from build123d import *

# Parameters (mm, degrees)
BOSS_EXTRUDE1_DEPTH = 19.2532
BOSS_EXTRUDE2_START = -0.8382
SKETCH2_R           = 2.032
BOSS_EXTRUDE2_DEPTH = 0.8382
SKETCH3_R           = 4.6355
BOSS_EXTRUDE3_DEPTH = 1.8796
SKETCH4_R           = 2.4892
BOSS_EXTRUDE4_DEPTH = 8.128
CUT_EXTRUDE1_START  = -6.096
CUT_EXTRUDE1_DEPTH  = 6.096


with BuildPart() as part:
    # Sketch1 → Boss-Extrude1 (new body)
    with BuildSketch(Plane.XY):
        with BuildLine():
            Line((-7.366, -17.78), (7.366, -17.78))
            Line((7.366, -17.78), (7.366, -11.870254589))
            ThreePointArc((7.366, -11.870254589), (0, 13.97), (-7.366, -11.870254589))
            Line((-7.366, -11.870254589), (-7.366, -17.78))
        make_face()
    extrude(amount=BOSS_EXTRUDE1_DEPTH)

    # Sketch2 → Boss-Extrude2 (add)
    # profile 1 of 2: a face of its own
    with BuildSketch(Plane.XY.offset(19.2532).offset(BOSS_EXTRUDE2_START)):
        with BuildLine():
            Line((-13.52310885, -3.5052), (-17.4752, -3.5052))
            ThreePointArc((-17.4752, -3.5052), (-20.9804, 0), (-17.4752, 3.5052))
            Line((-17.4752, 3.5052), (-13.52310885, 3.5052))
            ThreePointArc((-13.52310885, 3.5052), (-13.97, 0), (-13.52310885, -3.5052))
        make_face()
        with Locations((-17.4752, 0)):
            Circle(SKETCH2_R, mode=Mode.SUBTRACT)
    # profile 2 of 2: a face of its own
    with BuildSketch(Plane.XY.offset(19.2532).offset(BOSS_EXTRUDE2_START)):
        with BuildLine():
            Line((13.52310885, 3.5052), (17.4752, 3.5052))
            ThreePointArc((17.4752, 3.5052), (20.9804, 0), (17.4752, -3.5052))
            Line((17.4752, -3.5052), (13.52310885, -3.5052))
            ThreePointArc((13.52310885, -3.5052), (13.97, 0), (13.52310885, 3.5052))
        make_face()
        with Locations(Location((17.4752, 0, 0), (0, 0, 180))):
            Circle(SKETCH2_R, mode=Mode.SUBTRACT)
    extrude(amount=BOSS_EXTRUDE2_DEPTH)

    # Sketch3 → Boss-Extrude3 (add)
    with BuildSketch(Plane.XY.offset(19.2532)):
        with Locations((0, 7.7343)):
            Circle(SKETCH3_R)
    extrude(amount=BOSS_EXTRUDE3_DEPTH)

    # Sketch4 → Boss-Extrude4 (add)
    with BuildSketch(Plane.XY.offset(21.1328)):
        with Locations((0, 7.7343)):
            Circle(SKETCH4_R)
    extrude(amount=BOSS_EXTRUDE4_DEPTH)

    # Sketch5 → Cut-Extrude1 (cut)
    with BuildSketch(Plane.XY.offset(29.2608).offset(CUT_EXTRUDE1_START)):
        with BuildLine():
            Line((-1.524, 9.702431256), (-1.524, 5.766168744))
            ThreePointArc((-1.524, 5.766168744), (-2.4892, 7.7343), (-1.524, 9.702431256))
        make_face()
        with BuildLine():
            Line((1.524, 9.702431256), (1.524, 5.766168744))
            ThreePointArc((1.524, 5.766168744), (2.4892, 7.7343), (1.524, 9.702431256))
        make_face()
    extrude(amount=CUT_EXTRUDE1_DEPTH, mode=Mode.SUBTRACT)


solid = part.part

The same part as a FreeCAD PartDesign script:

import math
import FreeCAD as App
import Part
import Sketcher
Q = App.Units.Quantity

doc = App.newDocument("Part")
params = doc.addObject("Spreadsheet::Sheet", "Params")
for row, (alias, value) in enumerate([
    ("sketch1_radius", "0.55 in"),
    ("sketch1_width", "0.58 in"),
    ("pad1_length", "0.758 in"),
    ("sketch2_diameter", "0.16 in"),
    ("sketch2_radius", "0.55 in"),
    ("sketch2_radius2", "0.138 in"),
    ("pad2_length", "0.033 in"),
    ("sketch3_diameter", "0.365 in"),
    ("pad3_length", "0.074 in"),
    ("sketch4_diameter", "0.196 in"),
    ("pad4_length", "0.32 in"),
    ("sketch5_radius", "0.098 in"),
    ("pocket1_length", "0.24 in"),
], start=1):
    params.set(f"A{row}", alias)
    params.set(f"B{row}", "=" + value)
    params.setAlias(f"B{row}", alias)

body = doc.addObject("PartDesign::Body", "Body")

# Sketch on XY plane
sketch1 = doc.addObject("Sketcher::SketchObject", "Sketch")
body.addObject(sketch1)
sketch1.AttachmentSupport = (doc.XY_Plane, [""])
sketch1.MapMode = "FlatFace"
sketch1.addGeometry([
    Part.LineSegment(App.Vector(-7.366, -17.78, 0), App.Vector(7.366, -17.78, 0)),
    Part.LineSegment(App.Vector(7.366, -17.78, 0), App.Vector(7.366, -11.870255, 0)),
    Part.ArcOfCircle(Part.Circle(App.Vector(0, 0, 0), App.Vector(0, 0, 1), 13.97), math.radians(-58.178631), math.radians(238.178631)),
    Part.LineSegment(App.Vector(-7.366, -11.870255, 0), App.Vector(-7.366, -17.78, 0)),
], False)
sketch1.addConstraint([
    Sketcher.Constraint("Coincident", 0, 2, 1, 1),
    Sketcher.Constraint("Coincident", 1, 2, 2, 1),
    Sketcher.Constraint("Coincident", 2, 2, 3, 1),
    Sketcher.Constraint("Coincident", 3, 2, 0, 1),
    Sketcher.Constraint("Horizontal", 0),
    Sketcher.Constraint("Vertical", 1),
    Sketcher.Constraint("Vertical", 3),
    Sketcher.Constraint("Coincident", 2, 3, -1, 1),
    Sketcher.Constraint("Horizontal", 1, 2, 2, 2),
    Sketcher.Constraint("Radius", 2, Q("0.55 in")),
    Sketcher.Constraint("DistanceX", 0, 1, 0, 2, Q("0.58 in")),
    Sketcher.Constraint("DistanceY", 0, 2, -1, 1, Q("0.7 in")),
])
sketch1.setExpression("Constraints[9]", "Params.sketch1_radius")
sketch1.setExpression("Constraints[10]", "Params.sketch1_width")
pad1 = doc.addObject("PartDesign::Pad", "Pad")
body.addObject(pad1)
pad1.Profile = sketch1
pad1.setExpression("Length", "Params.pad1_length")

# Sketch on XY plane
sketch2 = doc.addObject("Sketcher::SketchObject", "Sketch001")
body.addObject(sketch2)
sketch2.AttachmentSupport = (doc.XY_Plane, [""])
sketch2.MapMode = "FlatFace"
sketch2.AttachmentOffset = App.Placement(App.Vector(0, 0, 0.725 * 25.4), App.Rotation())
sketch2.addGeometry([
    Part.LineSegment(App.Vector(-17.4752, -3.5052, 0), App.Vector(-13.523109, -3.5052, 0)),  # 0
    Part.ArcOfCircle(Part.Circle(App.Vector(0, 0, 0), App.Vector(0, 0, 1), 13.97), math.radians(165.468686), math.radians(194.531314)),  # 1
    Part.LineSegment(App.Vector(-13.523109, 3.5052, 0), App.Vector(-17.4752, 3.5052, 0)),  # 2
    Part.ArcOfCircle(Part.Circle(App.Vector(-17.4752, 0, 0), App.Vector(0, 0, 1), 3.5052), math.radians(90), math.radians(270)),  # 3
    Part.Circle(App.Vector(-17.4752, 0, 0), App.Vector(0, 0, 1), 2.032),  # 4
    Part.LineSegment(App.Vector(17.4752, 3.5052, 0), App.Vector(13.523109, 3.5052, 0)),  # 5
    Part.ArcOfCircle(Part.Circle(App.Vector(0, 0, 0), App.Vector(0, 0, 1), 13.97), math.radians(-14.531314), math.radians(14.531314)),  # 6
    Part.LineSegment(App.Vector(13.523109, -3.5052, 0), App.Vector(17.4752, -3.5052, 0)),  # 7
    Part.ArcOfCircle(Part.Circle(App.Vector(17.4752, 0, 0), App.Vector(0, 0, 1), 3.5052), math.radians(-90), math.radians(90)),  # 8
    Part.Circle(App.Vector(17.4752, 0, 0), App.Vector(0, 0, 1), 2.032),  # 9
], False)
sketch2.addConstraint([
    Sketcher.Constraint("Coincident", 0, 2, 1, 2),
    Sketcher.Constraint("Coincident", 1, 1, 2, 1),
    Sketcher.Constraint("Tangent", 2, 2, 3, 1),
    Sketcher.Constraint("Tangent", 3, 2, 0, 1),
    Sketcher.Constraint("Coincident", 5, 2, 6, 2),
    Sketcher.Constraint("Coincident", 6, 1, 7, 1),
    Sketcher.Constraint("Tangent", 7, 2, 8, 1),
    Sketcher.Constraint("Tangent", 8, 2, 5, 1),
    Sketcher.Constraint("Horizontal", 0),
    Sketcher.Constraint("Horizontal", 2),
    Sketcher.Constraint("Horizontal", 5),
    Sketcher.Constraint("Horizontal", 7),
    Sketcher.Constraint("Coincident", 1, 3, -1, 1),
    Sketcher.Constraint("Coincident", 6, 3, -1, 1),
    Sketcher.Constraint("Coincident", 4, 3, 3, 3),
    Sketcher.Constraint("Coincident", 9, 3, 8, 3),
    Sketcher.Constraint("Equal", 1, 6),
    Sketcher.Constraint("Equal", 3, 8),
    Sketcher.Constraint("Equal", 4, 9),
    Sketcher.Constraint("Symmetric", 3, 3, 8, 3, -1, 1),
    Sketcher.Constraint("PointOnObject", 3, 3, -1),
    Sketcher.Constraint("Diameter", 4, Q("0.16 in")),
    Sketcher.Constraint("Radius", 1, Q("0.55 in")),
    Sketcher.Constraint("Radius", 3, Q("0.138 in")),
    Sketcher.Constraint("DistanceX", 3, 3, -1, 1, Q("0.688 in")),
])
sketch2.setExpression("Constraints[21]", "Params.sketch2_diameter")
sketch2.setExpression("Constraints[22]", "Params.sketch2_radius")
sketch2.setExpression("Constraints[23]", "Params.sketch2_radius2")
pad2 = doc.addObject("PartDesign::Pad", "Pad001")
body.addObject(pad2)
pad2.Profile = sketch2
pad2.setExpression("Length", "Params.pad2_length")

# Sketch on XY plane
sketch3 = doc.addObject("Sketcher::SketchObject", "Sketch002")
body.addObject(sketch3)
sketch3.AttachmentSupport = (doc.XY_Plane, [""])
sketch3.MapMode = "FlatFace"
sketch3.AttachmentOffset = App.Placement(App.Vector(0, 0, 0.758 * 25.4), App.Rotation())
sketch3.addGeometry(Part.Circle(App.Vector(0, 7.7343, 0), App.Vector(0, 0, 1), 4.6355), False)
sketch3.addConstraint([
    Sketcher.Constraint("PointOnObject", 0, 3, -2),
    Sketcher.Constraint("Diameter", 0, Q("0.365 in")),
    Sketcher.Constraint("DistanceY", -1, 1, 0, 3, Q("0.3045 in")),
])
sketch3.setExpression("Constraints[1]", "Params.sketch3_diameter")
pad3 = doc.addObject("PartDesign::Pad", "Pad002")
body.addObject(pad3)
pad3.Profile = sketch3
pad3.setExpression("Length", "Params.pad3_length")

# Sketch on XY plane
sketch4 = doc.addObject("Sketcher::SketchObject", "Sketch003")
body.addObject(sketch4)
sketch4.AttachmentSupport = (doc.XY_Plane, [""])
sketch4.MapMode = "FlatFace"
sketch4.AttachmentOffset = App.Placement(App.Vector(0, 0, 0.832 * 25.4), App.Rotation())
sketch4.addGeometry(Part.Circle(App.Vector(0, 7.7343, 0), App.Vector(0, 0, 1), 2.4892), False)
sketch4.addConstraint([
    Sketcher.Constraint("PointOnObject", 0, 3, -2),
    Sketcher.Constraint("Diameter", 0, Q("0.196 in")),
    Sketcher.Constraint("DistanceY", -1, 1, 0, 3, Q("0.3045 in")),
])
sketch4.setExpression("Constraints[1]", "Params.sketch4_diameter")
pad4 = doc.addObject("PartDesign::Pad", "Pad003")
body.addObject(pad4)
pad4.Profile = sketch4
pad4.setExpression("Length", "Params.pad4_length")

# Sketch on XY plane
sketch5 = doc.addObject("Sketcher::SketchObject", "Sketch004")
body.addObject(sketch5)
sketch5.AttachmentSupport = (doc.XY_Plane, [""])
sketch5.MapMode = "FlatFace"
sketch5.AttachmentOffset = App.Placement(App.Vector(0, 0, 0.912 * 25.4), App.Rotation())
sketch5.addGeometry([
    Part.LineSegment(App.Vector(-1.524, 5.766169, 0), App.Vector(-1.524, 9.702431, 0)),
    Part.ArcOfCircle(Part.Circle(App.Vector(0, 7.7343, 0), App.Vector(0, 0, 1), 2.4892), math.radians(127.752001), math.radians(232.247999)),
    Part.LineSegment(App.Vector(1.524, 9.702431, 0), App.Vector(1.524, 5.766169, 0)),
    Part.ArcOfCircle(Part.Circle(App.Vector(0, 7.7343, 0), App.Vector(0, 0, 1), 2.4892), math.radians(-52.247999), math.radians(52.247999)),
], False)
sketch5.addConstraint([
    Sketcher.Constraint("Coincident", 0, 1, 1, 2),
    Sketcher.Constraint("Coincident", 1, 1, 0, 2),
    Sketcher.Constraint("Coincident", 2, 1, 3, 2),
    Sketcher.Constraint("Coincident", 3, 1, 2, 2),
    Sketcher.Constraint("Vertical", 0),
    Sketcher.Constraint("Vertical", 2),
    Sketcher.Constraint("Coincident", 3, 3, 1, 3),
    Sketcher.Constraint("Equal", 1, 3),
    Sketcher.Constraint("Symmetric", 1, 1, 2, 1, -2),
    Sketcher.Constraint("Radius", 1, Q("0.098 in")),
    Sketcher.Constraint("DistanceX", 0, 1, -1, 1, Q("0.06 in")),
    Sketcher.Constraint("DistanceY", -1, 1, 1, 3, Q("0.3045 in")),
])
sketch5.setExpression("Constraints[9]", "Params.sketch5_radius")
pocket1 = doc.addObject("PartDesign::Pocket", "Pocket")
body.addObject(pocket1)
pocket1.Profile = sketch5
pocket1.setExpression("Length", "Params.pocket1_length")
pocket1.Reversed = True

doc.recompute()
